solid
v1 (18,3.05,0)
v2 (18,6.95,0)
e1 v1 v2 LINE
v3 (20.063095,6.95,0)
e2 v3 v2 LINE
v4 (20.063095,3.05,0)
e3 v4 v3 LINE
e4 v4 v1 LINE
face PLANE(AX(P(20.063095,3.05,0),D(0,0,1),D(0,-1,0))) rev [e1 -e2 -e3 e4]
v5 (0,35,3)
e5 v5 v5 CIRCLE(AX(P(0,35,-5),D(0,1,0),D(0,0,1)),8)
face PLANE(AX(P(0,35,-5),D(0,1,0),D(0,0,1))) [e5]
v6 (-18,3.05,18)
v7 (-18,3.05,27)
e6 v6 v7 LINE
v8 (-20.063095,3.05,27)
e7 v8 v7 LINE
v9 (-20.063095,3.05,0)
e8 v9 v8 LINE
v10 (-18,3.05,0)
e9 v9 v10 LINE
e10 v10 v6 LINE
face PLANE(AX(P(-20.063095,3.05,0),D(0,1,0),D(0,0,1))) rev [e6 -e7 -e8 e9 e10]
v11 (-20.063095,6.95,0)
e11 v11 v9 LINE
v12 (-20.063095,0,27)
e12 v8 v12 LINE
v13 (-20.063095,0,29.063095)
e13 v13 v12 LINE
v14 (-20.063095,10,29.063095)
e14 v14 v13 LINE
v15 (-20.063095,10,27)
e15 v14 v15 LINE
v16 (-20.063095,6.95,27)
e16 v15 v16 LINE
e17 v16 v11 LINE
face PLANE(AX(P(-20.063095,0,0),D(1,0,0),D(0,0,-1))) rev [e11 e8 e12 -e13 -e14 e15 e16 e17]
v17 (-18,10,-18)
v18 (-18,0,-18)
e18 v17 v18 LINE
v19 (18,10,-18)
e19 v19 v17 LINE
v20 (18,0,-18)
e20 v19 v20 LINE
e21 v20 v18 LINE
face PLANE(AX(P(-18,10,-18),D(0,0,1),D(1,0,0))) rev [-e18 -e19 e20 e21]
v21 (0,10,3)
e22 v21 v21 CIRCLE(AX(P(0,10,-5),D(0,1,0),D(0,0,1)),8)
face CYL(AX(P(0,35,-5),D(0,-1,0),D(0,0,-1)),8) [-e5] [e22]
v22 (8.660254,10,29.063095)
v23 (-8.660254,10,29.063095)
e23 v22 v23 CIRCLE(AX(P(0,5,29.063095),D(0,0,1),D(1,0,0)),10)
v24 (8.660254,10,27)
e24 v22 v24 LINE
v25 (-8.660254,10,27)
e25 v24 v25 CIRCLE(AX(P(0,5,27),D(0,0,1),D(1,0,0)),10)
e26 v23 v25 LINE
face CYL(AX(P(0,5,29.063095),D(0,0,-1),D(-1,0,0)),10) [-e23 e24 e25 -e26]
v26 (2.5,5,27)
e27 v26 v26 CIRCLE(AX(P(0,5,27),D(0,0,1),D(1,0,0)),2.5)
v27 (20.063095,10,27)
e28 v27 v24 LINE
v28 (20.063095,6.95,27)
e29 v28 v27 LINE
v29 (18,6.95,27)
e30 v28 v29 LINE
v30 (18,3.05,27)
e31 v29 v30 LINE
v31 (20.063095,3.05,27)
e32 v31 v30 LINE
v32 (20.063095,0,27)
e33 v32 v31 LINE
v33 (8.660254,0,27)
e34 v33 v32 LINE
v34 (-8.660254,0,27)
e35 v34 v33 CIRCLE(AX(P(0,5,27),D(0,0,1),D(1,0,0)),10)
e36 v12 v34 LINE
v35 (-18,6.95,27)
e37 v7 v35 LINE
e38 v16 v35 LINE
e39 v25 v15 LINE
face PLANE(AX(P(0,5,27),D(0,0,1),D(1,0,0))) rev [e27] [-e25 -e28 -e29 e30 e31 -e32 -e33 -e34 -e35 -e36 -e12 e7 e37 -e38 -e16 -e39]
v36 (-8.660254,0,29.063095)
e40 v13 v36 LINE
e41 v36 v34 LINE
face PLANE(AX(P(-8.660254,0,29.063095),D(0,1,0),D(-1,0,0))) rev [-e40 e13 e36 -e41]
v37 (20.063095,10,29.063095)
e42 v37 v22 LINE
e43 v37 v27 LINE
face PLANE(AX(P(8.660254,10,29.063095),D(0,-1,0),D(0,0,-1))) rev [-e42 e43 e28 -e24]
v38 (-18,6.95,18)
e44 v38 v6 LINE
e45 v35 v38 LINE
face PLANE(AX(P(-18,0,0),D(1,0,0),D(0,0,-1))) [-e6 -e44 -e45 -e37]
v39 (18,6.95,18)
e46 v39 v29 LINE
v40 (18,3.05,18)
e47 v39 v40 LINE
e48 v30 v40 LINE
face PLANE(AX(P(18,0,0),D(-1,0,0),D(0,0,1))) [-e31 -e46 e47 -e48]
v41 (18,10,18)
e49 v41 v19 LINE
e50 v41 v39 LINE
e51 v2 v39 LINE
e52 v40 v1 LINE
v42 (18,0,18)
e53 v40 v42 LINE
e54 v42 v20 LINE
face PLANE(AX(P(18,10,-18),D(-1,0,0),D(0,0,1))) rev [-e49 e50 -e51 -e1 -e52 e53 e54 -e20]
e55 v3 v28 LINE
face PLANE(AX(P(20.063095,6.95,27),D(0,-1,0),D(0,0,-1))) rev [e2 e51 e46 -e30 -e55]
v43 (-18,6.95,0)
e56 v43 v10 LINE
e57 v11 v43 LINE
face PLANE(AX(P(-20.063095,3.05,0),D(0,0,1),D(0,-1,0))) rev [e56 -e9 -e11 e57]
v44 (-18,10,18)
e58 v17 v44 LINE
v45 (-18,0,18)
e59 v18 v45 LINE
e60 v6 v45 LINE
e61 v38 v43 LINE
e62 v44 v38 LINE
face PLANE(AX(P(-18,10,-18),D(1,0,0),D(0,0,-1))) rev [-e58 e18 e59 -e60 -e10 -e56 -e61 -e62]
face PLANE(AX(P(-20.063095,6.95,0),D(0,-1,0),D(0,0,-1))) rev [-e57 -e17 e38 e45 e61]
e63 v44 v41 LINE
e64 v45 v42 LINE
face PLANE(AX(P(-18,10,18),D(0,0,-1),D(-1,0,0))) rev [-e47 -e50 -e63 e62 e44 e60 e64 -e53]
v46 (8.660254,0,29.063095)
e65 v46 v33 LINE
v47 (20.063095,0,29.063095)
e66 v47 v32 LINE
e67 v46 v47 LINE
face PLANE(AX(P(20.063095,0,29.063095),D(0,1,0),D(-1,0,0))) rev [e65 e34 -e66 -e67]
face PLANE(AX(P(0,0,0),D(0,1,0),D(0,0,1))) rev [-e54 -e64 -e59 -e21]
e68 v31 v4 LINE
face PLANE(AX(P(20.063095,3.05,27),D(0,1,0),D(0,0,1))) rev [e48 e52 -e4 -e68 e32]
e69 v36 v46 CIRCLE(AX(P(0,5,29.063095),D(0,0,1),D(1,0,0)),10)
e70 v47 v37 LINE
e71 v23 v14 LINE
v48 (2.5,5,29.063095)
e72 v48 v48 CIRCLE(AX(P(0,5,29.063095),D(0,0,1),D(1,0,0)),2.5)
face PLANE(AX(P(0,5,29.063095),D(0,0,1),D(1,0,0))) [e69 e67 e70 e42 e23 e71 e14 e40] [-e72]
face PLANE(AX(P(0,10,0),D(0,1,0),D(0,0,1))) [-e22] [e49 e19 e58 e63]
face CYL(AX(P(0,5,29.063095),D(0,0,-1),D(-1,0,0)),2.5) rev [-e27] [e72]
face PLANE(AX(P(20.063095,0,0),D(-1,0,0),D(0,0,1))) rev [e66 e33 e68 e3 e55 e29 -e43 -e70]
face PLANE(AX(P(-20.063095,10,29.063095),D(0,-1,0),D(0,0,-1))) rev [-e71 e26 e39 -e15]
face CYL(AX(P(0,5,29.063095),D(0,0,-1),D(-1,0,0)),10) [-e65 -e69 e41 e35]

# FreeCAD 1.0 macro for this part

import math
import FreeCAD as App
import Part
import Sketcher
from FreeCAD import Vector


def add_polygon(sketch, points):
    """Adds a closed chain of lines whose ends are joined by coincident constraints."""
    first, n = sketch.GeometryCount, len(points)
    for a, b in zip(points, points[1:] + points[:1]):
        sketch.addGeometry(Part.LineSegment(App.Vector(*a, 0), App.Vector(*b, 0)), False)
    for i in range(n):
        sketch.addConstraint(Sketcher.Constraint("Coincident", first + i, 2, first + (i + 1) % n, 1))

doc = App.newDocument("Part")
params = doc.addObject("Spreadsheet::Sheet", "Params")
for row, (alias, value) in enumerate([
    ("sketch1_width", "36 mm"),
    ("pad1_length", "10 mm"),
    ("sketch2_diameter", "16 mm"),
    ("pad2_length", "25 mm"),
    ("sketch3_height", "27 mm"),
    ("sketch3_width", "3.9 mm"),
    ("pad3_length", "2.063095 mm"),
    ("sketch4_height", "27 mm"),
    ("sketch4_width", "3.9 mm"),
    ("pad4_length", "2.063095 mm"),
    ("sketch5_diameter", "5 mm"),
    ("sketch5_radius", "10 mm"),
    ("sketch5_height", "10 mm"),
    ("pad5_length", "2.063095 mm"),
], start=1):
    params.set(f"A{row}", alias)
    params.set(f"B{row}", "=" + value)
    params.setAlias(f"B{row}", alias)

body = doc.addObject("PartDesign::Body", "Body")

sketch1 = body.newObject("Sketcher::SketchObject", "Sketch")
sketch1.AttachmentSupport = (doc.getObject("XZ_Plane"), [""])
sketch1.MapMode = "FlatFace"
add_polygon(sketch1, [(-18, -18), (-18, 18), (18, 18), (18, -18)])
sketch1.addConstraint(Sketcher.Constraint("Vertical", 0))
sketch1.addConstraint(Sketcher.Constraint("Horizontal", 1))
sketch1.addConstraint(Sketcher.Constraint("Vertical", 2))
sketch1.addConstraint(Sketcher.Constraint("Horizontal", 3))
sketch1.addConstraint(Sketcher.Constraint("Symmetric", 0, 2, 2, 2, -1, 1))
sketch1.addConstraint(Sketcher.Constraint("Equal", 3, 0))
sketch1.addConstraint(Sketcher.Constraint("DistanceX", 1, 1, 1, 2, 36.0))
sketch1.setExpression("Constraints[10]", "Params.sketch1_width")
pad1 = body.newObject("PartDesign::Pad", "Pad")
pad1.Profile = sketch1
pad1.setExpression("Length", "Params.pad1_length")
pad1.Reversed = True

sketch2 = body.newObject("Sketcher::SketchObject", "Sketch001")
sketch2.AttachmentSupport = (doc.getObject("XZ_Plane"), [""])
sketch2.MapMode = "FlatFace"
sketch2.AttachmentOffset = App.Placement(Vector(0, 0, -10), App.Rotation())
sketch2.addGeometry(Part.Circle(Vector(0, -5, 0), Vector(0, 0, 1), 8), False)
sketch2.addConstraint(Sketcher.Constraint("PointOnObject", 0, 3, -2))
sketch2.addConstraint(Sketcher.Constraint("Diameter", 0, 16.0))
sketch2.addConstraint(Sketcher.Constraint("DistanceY", 0, 3, -1, 1, 5.0))
sketch2.setExpression("Constraints[1]", "Params.sketch2_diameter")
pad2 = body.newObject("PartDesign::Pad", "Pad001")
pad2.Profile = sketch2
pad2.setExpression("Length", "Params.pad2_length")
pad2.Reversed = True

sketch3 = body.newObject("Sketcher::SketchObject", "Sketch002")
sketch3.AttachmentSupport = (doc.getObject("YZ_Plane"), [""])
sketch3.MapMode = "FlatFace"
sketch3.AttachmentOffset = App.Placement(Vector(0, 0, -18), App.Rotation())
add_polygon(sketch3, [(7, 0), (3, 0), (3, 27), (7, 27)])
sketch3.addConstraint(Sketcher.Constraint("Horizontal", 0))
sketch3.addConstraint(Sketcher.Constraint("Vertical", 1))
sketch3.addConstraint(Sketcher.Constraint("Horizontal", 2))
sketch3.addConstraint(Sketcher.Constraint("Vertical", 3))
sketch3.addConstraint(Sketcher.Constraint("PointOnObject", 0, 2, -1))
sketch3.addConstraint(Sketcher.Constraint("DistanceY", 1, 1, 1, 2, 27.0))
sketch3.addConstraint(Sketcher.Constraint("DistanceX", 0, 2, 0, 1, 3.9))
sketch3.addConstraint(Sketcher.Constraint("DistanceX", -1, 1, 0, 2, 3.05))
sketch3.setExpression("Constraints[9]", "Params.sketch3_height")
sketch3.setExpression("Constraints[10]", "Params.sketch3_width")
pad3 = body.newObject("PartDesign::Pad", "Pad002")
pad3.Profile = sketch3
pad3.setExpression("Length", "Params.pad3_length")
pad3.Reversed = True

sketch4 = body.newObject("Sketcher::SketchObject", "Sketch003")
sketch4.AttachmentSupport = (doc.getObject("YZ_Plane"), [""])
sketch4.MapMode = "FlatFace"
sketch4.AttachmentOffset = App.Placement(Vector(0, 0, 18), App.Rotation())
add_polygon(sketch4, [(7, 27), (3, 27), (3, 0), (7, 0)])
sketch4.addConstraint(Sketcher.Constraint("Horizontal", 0))
sketch4.addConstraint(Sketcher.Constraint("Vertical", 1))
sketch4.addConstraint(Sketcher.Constraint("Horizontal", 2))
sketch4.addConstraint(Sketcher.Constraint("Vertical", 3))
sketch4.addConstraint(Sketcher.Constraint("PointOnObject", 1, 2, -1))
sketch4.addConstraint(Sketcher.Constraint("DistanceY", 1, 2, 1, 1, 27.0))
sketch4.addConstraint(Sketcher.Constraint("DistanceX", 0, 2, 0, 1, 3.9))
sketch4.addConstraint(Sketcher.Constraint("DistanceX", -1, 1, 0, 2, 3.05))
sketch4.setExpression("Constraints[9]", "Params.sketch4_height")
sketch4.setExpression("Constraints[10]", "Params.sketch4_width")
pad4 = body.newObject("PartDesign::Pad", "Pad003")
pad4.Profile = sketch4
pad4.setExpression("Length", "Params.pad4_length")

sketch5 = body.newObject("Sketcher::SketchObject", "Sketch004")
sketch5.AttachmentSupport = (doc.getObject("XY_Plane"), [""])
sketch5.MapMode = "FlatFace"
sketch5.AttachmentOffset = App.Placement(Vector(0, 0, 27), App.Rotation())
sketch5.addGeometry(Part.LineSegment(Vector(8.7, 0, 0), Vector(20.1, 0, 0)), False)
sketch5.addGeometry(Part.LineSegment(Vector(20.1, 0, 0), Vector(20.1, 10, 0)), False)
sketch5.addGeometry(Part.LineSegment(Vector(20.1, 10, 0), Vector(8.7, 10, 0)), False)
sketch5.addGeometry(Part.ArcOfCircle(Part.Circle(Vector(0, 5, 0), Vector(0, 0, 1), 10), math.radians(30), math.radians(150)), False)
sketch5.addGeometry(Part.LineSegment(Vector(-8.7, 10, 0), Vector(-20.1, 10, 0)), False)
sketch5.addGeometry(Part.LineSegment(Vector(-20.1, 10, 0), Vector(-20.1, 0, 0)), False)
sketch5.addGeometry(Part.LineSegment(Vector(-20.1, 0, 0), Vector(-8.7, 0, 0)), False)
sketch5.addGeometry(Part.ArcOfCircle(Part.Circle(Vector(0, 5, 0), Vector(0, 0, 1), 10), math.radians(-150), math.radians(-30)), False)
sketch5.addGeometry(Part.Circle(Vector(0, 5, 0), Vector(0, 0, 1), 2.5), False)
sketch5.addConstraint(Sketcher.Constraint("Coincident", 0, 2, 1, 1))
sketch5.addConstraint(Sketcher.Constraint("Coincident", 1, 2, 2, 1))
sketch5.addConstraint(Sketcher.Constraint("Coincident", 2, 2, 3, 1))
sketch5.addConstraint(Sketcher.Constraint("Coincident", 3, 2, 4, 1))
sketch5.addConstraint(Sketcher.Constraint("Coincident", 4, 2, 5, 1))
sketch5.addConstraint(Sketcher.Constraint("Coincident", 5, 2, 6, 1))
sketch5.addConstraint(Sketcher.Constraint("Coincident", 6, 2, 7, 1))
sketch5.addConstraint(Sketcher.Constraint("Coincident", 7, 2, 0, 1))
sketch5.addConstraint(Sketcher.Constraint("Horizontal", 0))
sketch5.addConstraint(Sketcher.Constraint("Vertical", 1))
sketch5.addConstraint(Sketcher.Constraint("Horizontal", 2))
sketch5.addConstraint(Sketcher.Constraint("Horizontal", 4))
sketch5.addConstraint(Sketcher.Constraint("Vertical", 5))
sketch5.addConstraint(Sketcher.Constraint("Horizontal", 6))
sketch5.addConstraint(Sketcher.Constraint("Coincident", 7, 3, 3, 3))
sketch5.addConstraint(Sketcher.Constraint("Coincident", 8, 3, 3, 3))
sketch5.addConstraint(Sketcher.Constraint("Equal", 3, 7))
sketch5.addConstraint(Sketcher.Constraint("Symmetric", 0, 2, 5, 2, -1, 1))
sketch5.addConstraint(Sketcher.Constraint("Symmetric", 2, 2, 3, 2, -2))
sketch5.addConstraint(Sketcher.Constraint("PointOnObject", 0, 2, -1))
sketch5.addConstraint(Sketcher.Constraint("Vertical", 3, 2, 6, 2))
sketch5.addConstraint(Sketcher.Constraint("Diameter", 8, 5.0))
sketch5.addConstraint(Sketcher.Constraint("Radius", 3, 10.0))
sketch5.addConstraint(Sketcher.Constraint("DistanceY", 1, 1, 1, 2, 10.0))
sketch5.addConstraint(Sketcher.Constraint("DistanceX", 0, 1, 0, 2, 11.402841))
sketch5.setExpression("Constraints[21]", "Params.sketch5_diameter")
sketch5.setExpression("Constraints[22]", "Params.sketch5_radius")
sketch5.setExpression("Constraints[23]", "Params.sketch5_height")
pad5 = body.newObject("PartDesign::Pad", "Pad004")
pad5.Profile = sketch5
pad5.setExpression("Length", "Params.pad5_length")

doc.recompute()
